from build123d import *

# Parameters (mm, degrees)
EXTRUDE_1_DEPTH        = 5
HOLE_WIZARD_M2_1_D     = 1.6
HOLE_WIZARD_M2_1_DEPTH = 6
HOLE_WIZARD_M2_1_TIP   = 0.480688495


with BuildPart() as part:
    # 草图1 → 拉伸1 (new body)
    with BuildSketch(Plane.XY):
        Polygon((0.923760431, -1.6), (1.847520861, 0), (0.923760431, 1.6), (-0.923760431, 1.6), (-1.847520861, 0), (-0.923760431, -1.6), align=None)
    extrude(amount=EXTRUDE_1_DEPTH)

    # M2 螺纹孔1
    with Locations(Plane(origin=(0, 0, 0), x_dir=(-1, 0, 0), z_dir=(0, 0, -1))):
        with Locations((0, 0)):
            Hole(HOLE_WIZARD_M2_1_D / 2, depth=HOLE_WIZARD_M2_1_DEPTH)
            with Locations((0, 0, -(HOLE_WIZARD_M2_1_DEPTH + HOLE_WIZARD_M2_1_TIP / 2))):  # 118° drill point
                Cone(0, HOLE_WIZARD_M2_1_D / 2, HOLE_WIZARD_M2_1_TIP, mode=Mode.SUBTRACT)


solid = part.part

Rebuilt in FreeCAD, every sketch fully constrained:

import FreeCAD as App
import Part
import Sketcher
Q = App.Units.Quantity


def add_polygon(sketch, points):
    """Adds a closed chain of lines whose ends are joined by coincident constraints."""
    first, n = sketch.GeometryCount, len(points)
    for a, b in zip(points, points[1:] + points[:1]):
        sketch.addGeometry(Part.LineSegment(App.Vector(*a, 0), App.Vector(*b, 0)), False)
    for i in range(n):
        sketch.addConstraint(Sketcher.Constraint("Coincident", first + i, 2, first + (i + 1) % n, 1))

doc = App.newDocument("Part")
body = doc.addObject("PartDesign::Body", "Body")

# Sketch on XY plane
sketch1 = body.newObject("Sketcher::SketchObject", "Sketch")
sketch1.AttachmentSupport = (doc.getObject("XY_Plane"), [""])
sketch1.MapMode = "FlatFace"
add_polygon(sketch1, [(0.92376, -1.6), (1.847521, 0), (0.92376, 1.6), (-0.92376, 1.6), (-1.847521, 0), (-0.92376, -1.6)])  # lines 0-5
sketch1.addConstraint([
    Sketcher.Constraint("Horizontal", 2),
    Sketcher.Constraint("Horizontal", 5),
    Sketcher.Constraint("Symmetric", 0, 2, 3, 2, -1, 1),
    Sketcher.Constraint("Symmetric", 1, 2, 4, 2, -1, 1),
    Sketcher.Constraint("PointOnObject", 0, 2, -1),
    Sketcher.Constraint("Parallel", 0, 3),
    Sketcher.Constraint("Vertical", 2, 2, 4, 2),
    Sketcher.Constraint("Angle", 0, Q("60 deg")),
    Sketcher.Constraint("DistanceY", -1, 1, 1, 2, 1.6),
    Sketcher.Constraint("DistanceX", 2, 2, 2, 1, 1.847521),
])
pad1 = body.newObject("PartDesign::Pad", "Pad")
pad1.Profile = sketch1
pad1.Length = 5

# Sketch on XY plane
sketch2 = body.newObject("Sketcher::SketchObject", "Sketch001")
sketch2.AttachmentSupport = (doc.getObject("XY_Plane"), [""])
sketch2.MapMode = "FlatFace"
sketch2.addGeometry(Part.Circle(App.Vector(0, 0, 0), App.Vector(0, 0, 1), 0.8), False)
sketch2.addConstraint([
    Sketcher.Constraint("Coincident", 0, 3, -1, 1),
    Sketcher.Constraint("Diameter", 0, 1.6),
])
doc.recompute()
hole = body.newObject("PartDesign::Hole", "Hole")
hole.Profile = sketch2
hole.ThreadType = "None"
hole.Diameter = 1.6
hole.DepthType = "Dimension"
hole.Depth = 6
hole.DrillPoint = "Angled"
hole.DrillPointAngle = 118
hole.Reversed = True

doc.recompute()
